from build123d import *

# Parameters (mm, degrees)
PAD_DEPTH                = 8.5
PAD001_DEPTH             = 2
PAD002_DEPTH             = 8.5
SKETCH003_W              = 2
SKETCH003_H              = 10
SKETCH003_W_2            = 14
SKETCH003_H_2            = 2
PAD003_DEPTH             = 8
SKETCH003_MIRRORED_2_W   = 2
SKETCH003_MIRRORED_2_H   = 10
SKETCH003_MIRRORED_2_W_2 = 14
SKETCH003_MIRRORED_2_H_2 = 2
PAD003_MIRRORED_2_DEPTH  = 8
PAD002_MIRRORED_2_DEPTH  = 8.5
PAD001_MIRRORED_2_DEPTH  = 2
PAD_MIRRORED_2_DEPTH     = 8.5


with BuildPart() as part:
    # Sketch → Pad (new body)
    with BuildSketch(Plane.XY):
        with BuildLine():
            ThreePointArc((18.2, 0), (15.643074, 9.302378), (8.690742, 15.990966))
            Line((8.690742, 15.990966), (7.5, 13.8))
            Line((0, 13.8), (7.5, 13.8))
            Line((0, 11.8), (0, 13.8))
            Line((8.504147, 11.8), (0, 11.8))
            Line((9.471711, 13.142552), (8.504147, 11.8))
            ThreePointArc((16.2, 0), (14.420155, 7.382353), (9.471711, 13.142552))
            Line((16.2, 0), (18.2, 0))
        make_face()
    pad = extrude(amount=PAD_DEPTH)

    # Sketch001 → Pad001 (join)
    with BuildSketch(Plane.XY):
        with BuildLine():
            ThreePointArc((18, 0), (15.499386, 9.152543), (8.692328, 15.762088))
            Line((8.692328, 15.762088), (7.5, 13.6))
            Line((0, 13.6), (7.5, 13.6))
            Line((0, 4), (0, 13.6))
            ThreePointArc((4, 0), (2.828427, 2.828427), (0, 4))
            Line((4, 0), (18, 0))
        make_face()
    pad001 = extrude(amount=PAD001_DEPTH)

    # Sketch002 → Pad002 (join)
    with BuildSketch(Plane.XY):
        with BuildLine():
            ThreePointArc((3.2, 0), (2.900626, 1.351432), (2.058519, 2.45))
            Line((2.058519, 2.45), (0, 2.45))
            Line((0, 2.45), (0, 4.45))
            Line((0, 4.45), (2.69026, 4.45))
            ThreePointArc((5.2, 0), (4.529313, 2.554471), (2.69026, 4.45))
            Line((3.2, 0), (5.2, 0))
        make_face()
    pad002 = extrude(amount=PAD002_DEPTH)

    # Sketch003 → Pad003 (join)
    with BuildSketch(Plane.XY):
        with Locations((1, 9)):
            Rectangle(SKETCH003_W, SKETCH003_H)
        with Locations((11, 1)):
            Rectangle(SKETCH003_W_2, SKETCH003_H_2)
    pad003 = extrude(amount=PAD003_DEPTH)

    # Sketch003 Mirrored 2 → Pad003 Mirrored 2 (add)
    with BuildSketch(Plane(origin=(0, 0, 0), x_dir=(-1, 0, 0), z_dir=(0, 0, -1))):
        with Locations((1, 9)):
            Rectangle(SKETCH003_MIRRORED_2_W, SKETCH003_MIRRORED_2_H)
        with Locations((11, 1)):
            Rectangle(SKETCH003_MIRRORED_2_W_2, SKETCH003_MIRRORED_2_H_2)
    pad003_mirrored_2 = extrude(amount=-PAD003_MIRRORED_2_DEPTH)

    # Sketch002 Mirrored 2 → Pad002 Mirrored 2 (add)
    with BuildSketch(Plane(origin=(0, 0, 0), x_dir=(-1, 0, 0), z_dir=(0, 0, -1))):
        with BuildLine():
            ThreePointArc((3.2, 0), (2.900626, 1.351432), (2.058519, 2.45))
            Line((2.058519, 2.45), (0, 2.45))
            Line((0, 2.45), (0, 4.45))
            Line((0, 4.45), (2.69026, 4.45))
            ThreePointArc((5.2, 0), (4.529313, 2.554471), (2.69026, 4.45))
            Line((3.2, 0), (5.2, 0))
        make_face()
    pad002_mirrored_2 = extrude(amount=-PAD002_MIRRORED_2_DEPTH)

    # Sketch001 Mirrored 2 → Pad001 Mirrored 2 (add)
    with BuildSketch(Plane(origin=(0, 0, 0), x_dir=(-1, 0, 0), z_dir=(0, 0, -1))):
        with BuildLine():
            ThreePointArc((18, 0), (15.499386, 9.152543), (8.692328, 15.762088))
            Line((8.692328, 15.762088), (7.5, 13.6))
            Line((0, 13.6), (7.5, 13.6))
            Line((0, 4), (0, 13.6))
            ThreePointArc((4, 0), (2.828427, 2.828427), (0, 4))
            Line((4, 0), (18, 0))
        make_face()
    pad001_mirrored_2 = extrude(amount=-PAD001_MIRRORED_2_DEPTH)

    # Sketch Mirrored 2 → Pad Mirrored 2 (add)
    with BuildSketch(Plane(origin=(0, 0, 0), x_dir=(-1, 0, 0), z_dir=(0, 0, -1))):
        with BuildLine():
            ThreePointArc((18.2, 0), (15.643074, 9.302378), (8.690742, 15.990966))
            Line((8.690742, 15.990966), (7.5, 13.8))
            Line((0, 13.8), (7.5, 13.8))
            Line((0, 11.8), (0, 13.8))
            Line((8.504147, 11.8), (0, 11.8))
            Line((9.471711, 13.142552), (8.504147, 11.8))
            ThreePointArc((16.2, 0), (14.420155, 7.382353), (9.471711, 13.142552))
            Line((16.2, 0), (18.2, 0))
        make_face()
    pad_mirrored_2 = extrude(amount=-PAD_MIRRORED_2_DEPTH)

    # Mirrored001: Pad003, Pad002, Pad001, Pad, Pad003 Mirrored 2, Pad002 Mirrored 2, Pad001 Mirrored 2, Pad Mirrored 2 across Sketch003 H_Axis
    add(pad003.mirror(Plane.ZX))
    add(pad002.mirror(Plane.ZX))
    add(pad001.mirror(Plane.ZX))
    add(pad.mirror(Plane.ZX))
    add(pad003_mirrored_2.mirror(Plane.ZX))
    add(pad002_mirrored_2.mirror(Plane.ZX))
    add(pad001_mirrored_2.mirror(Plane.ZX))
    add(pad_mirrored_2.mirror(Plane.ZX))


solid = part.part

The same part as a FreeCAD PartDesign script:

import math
import FreeCAD as App
import Part
import Sketcher
from FreeCAD import Vector
Q = App.Units.Quantity


def add_polygon(sketch, points):
    """Adds a closed chain of lines whose ends are joined by coincident constraints."""
    first, n = sketch.GeometryCount, len(points)
    for a, b in zip(points, points[1:] + points[:1]):
        sketch.addGeometry(Part.LineSegment(App.Vector(*a, 0), App.Vector(*b, 0)), False)
    for i in range(n):
        sketch.addConstraint(Sketcher.Constraint("Coincident", first + i, 2, first + (i + 1) % n, 1))

doc = App.newDocument("Part")
body = doc.addObject("PartDesign::Body", "Body")
body.AllowCompound = True

# Sketch on XY plane
sketch1 = body.newObject("Sketcher::SketchObject", "Sketch")
sketch1.AttachmentSupport = (doc.getObject("XY_Plane"), [""])
sketch1.MapMode = "FlatFace"
sketch1.addGeometry(Part.ArcOfCircle(Part.Circle(Vector(0.000001, 0, 0), Vector(0, 0, 1), 18.199999), math.radians(-0.000001), math.radians(61.476885)), False)
sketch1.addGeometry(Part.LineSegment(Vector(8.690742, 15.990966, 0), Vector(7.5, 13.8, 0)), False)
sketch1.addGeometry(Part.LineSegment(Vector(7.5, 13.8, 0), Vector(0, 13.8, 0)), False)
sketch1.addGeometry(Part.LineSegment(Vector(0, 13.8, 0), Vector(0, 11.8, 0)), False)
sketch1.addGeometry(Part.LineSegment(Vector(0, 11.8, 0), Vector(8.504147, 11.8, 0)), False)
sketch1.addGeometry(Part.LineSegment(Vector(8.504147, 11.8, 0), Vector(9.471711, 13.142552, 0)), False)
sketch1.addGeometry(Part.ArcOfCircle(Part.Circle(Vector(0.000004, 0.000001, 0), Vector(0, 0, 1), 16.199996), math.radians(-0.000005), math.radians(54.220078)), False)
sketch1.addGeometry(Part.LineSegment(Vector(16.2, 0, 0), Vector(18.2, 0, 0)), False)
sketch1.addConstraint(Sketcher.Constraint("Coincident", 0, 2, 1, 1))
sketch1.addConstraint(Sketcher.Constraint("Coincident", 1, 2, 2, 1))
sketch1.addConstraint(Sketcher.Constraint("Coincident", 2, 2, 3, 1))
sketch1.addConstraint(Sketcher.Constraint("Coincident", 3, 2, 4, 1))
sketch1.addConstraint(Sketcher.Constraint("Coincident", 4, 2, 5, 1))
sketch1.addConstraint(Sketcher.Constraint("Coincident", 5, 2, 6, 2))
sketch1.addConstraint(Sketcher.Constraint("Coincident", 6, 1, 7, 1))
sketch1.addConstraint(Sketcher.Constraint("Coincident", 7, 2, 0, 1))
sketch1.addConstraint(Sketcher.Constraint("Horizontal", 2))
sketch1.addConstraint(Sketcher.Constraint("Vertical", 3))
sketch1.addConstraint(Sketcher.Constraint("Horizontal", 4))
sketch1.addConstraint(Sketcher.Constraint("Horizontal", 7))
sketch1.addConstraint(Sketcher.Constraint("Coincident", 0, 3, -1, 1))
sketch1.addConstraint(Sketcher.Constraint("Coincident", 6, 3, -1, 1))
sketch1.addConstraint(Sketcher.Constraint("PointOnObject", 2, 2, -2))
sketch1.addConstraint(Sketcher.Constraint("PointOnObject", 6, 1, -1))
sketch1.addConstraint(Sketcher.Constraint("Equal", 7, 3))
sketch1.addConstraint(Sketcher.Constraint("Radius", 0, Q("18.199999 mm")))
sketch1.addConstraint(Sketcher.Constraint("DistanceX", 7, 1, 7, 2, Q("2 mm")))
sketch1.addConstraint(Sketcher.Constraint("DistanceX", 2, 2, 2, 1, Q("7.5 mm")))
sketch1.addConstraint(Sketcher.Constraint("DistanceY", -1, 1, 1, 2, Q("13.8 mm")))
sketch1.addConstraint(Sketcher.Constraint("Distance", 5, Q("1.654879 mm")))
sketch1.addConstraint(Sketcher.Constraint("DistanceX", -1, 1, 0, 2, Q("8.690742 mm")))
sketch1.addConstraint(Sketcher.Constraint("DistanceX", -1, 1, 5, 2, Q("9.471711 mm")))
pad1 = body.newObject("PartDesign::Pad", "Pad")
pad1.Profile = sketch1
pad1.Length = 8.5

# Sketch on XY plane
sketch2 = body.newObject("Sketcher::SketchObject", "Sketch001")
sketch2.AttachmentSupport = (doc.getObject("XY_Plane"), [""])
sketch2.MapMode = "FlatFace"
sketch2.addGeometry(Part.ArcOfCircle(Part.Circle(Vector(0.000003, 0.000001, 0), Vector(0, 0, 1), 17.999997), math.radians(-0.000005), math.radians(61.124563)), False)
sketch2.addGeometry(Part.LineSegment(Vector(8.692328, 15.762088, 0), Vector(7.5, 13.6, 0)), False)
sketch2.addGeometry(Part.LineSegment(Vector(7.5, 13.6, 0), Vector(0, 13.6, 0)), False)
sketch2.addGeometry(Part.LineSegment(Vector(0, 13.6, 0), Vector(0, 4, 0)), False)
sketch2.addGeometry(Part.ArcOfCircle(Part.Circle(Vector(0, 0, 0), Vector(0, 0, 1), 4), math.radians(0.000006), math.radians(89.999994)), False)
sketch2.addGeometry(Part.LineSegment(Vector(4, 0, 0), Vector(18, 0, 0)), False)
sketch2.addConstraint(Sketcher.Constraint("Coincident", 0, 2, 1, 1))
sketch2.addConstraint(Sketcher.Constraint("Coincident", 1, 2, 2, 1))
sketch2.addConstraint(Sketcher.Constraint("Coincident", 2, 2, 3, 1))
sketch2.addConstraint(Sketcher.Constraint("Coincident", 3, 2, 4, 2))
sketch2.addConstraint(Sketcher.Constraint("Coincident", 4, 1, 5, 1))
sketch2.addConstraint(Sketcher.Constraint("Coincident", 5, 2, 0, 1))
sketch2.addConstraint(Sketcher.Constraint("Horizontal", 2))
sketch2.addConstraint(Sketcher.Constraint("Vertical", 3))
sketch2.addConstraint(Sketcher.Constraint("Horizontal", 5))
sketch2.addConstraint(Sketcher.Constraint("Coincident", 0, 3, -1, 1))
sketch2.addConstraint(Sketcher.Constraint("Coincident", 4, 3, -1, 1))
sketch2.addConstraint(Sketcher.Constraint("PointOnObject", 2, 2, -2))
sketch2.addConstraint(Sketcher.Constraint("PointOnObject", 4, 1, -1))
sketch2.addConstraint(Sketcher.Constraint("Radius", 4, Q("4 mm")))
sketch2.addConstraint(Sketcher.Constraint("DistanceX", 5, 1, 5, 2, Q("14 mm")))
sketch2.addConstraint(Sketcher.Constraint("DistanceX", 2, 2, 2, 1, Q("7.5 mm")))
sketch2.addConstraint(Sketcher.Constraint("DistanceY", 3, 2, 3, 1, Q("9.6 mm")))
sketch2.addConstraint(Sketcher.Constraint("DistanceX", -1, 1, 0, 2, Q("8.692328 mm")))
pad2 = body.newObject("PartDesign::Pad", "Pad001")
pad2.Profile = sketch2
pad2.Length = 2

# Sketch on XY plane
sketch3 = body.newObject("Sketcher::SketchObject", "Sketch002")
sketch3.AttachmentSupport = (doc.getObject("XY_Plane"), [""])
sketch3.MapMode = "FlatFace"
sketch3.addGeometry(Part.ArcOfCircle(Part.Circle(Vector(-0.000001, 0, 0), Vector(0, 0, 1), 3.200001), math.radians(0.000006), math.radians(49.962616)), False)
sketch3.addGeometry(Part.LineSegment(Vector(3.2, 0, 0), Vector(5.2, 0, 0)), False)
sketch3.addGeometry(Part.ArcOfCircle(Part.Circle(Vector(-0.000001, 0, 0), Vector(0, 0, 1), 5.200001), math.radians(0.000005), math.radians(58.844819)), False)
sketch3.addGeometry(Part.LineSegment(Vector(2.69026, 4.45, 0), Vector(0, 4.45, 0)), False)
sketch3.addGeometry(Part.LineSegment(Vector(0, 4.45, 0), Vector(0, 2.45, 0)), False)
sketch3.addGeometry(Part.LineSegment(Vector(0, 2.45, 0), Vector(2.058519, 2.45, 0)), False)
sketch3.addConstraint(Sketcher.Constraint("Coincident", 0, 1, 1, 1))
sketch3.addConstraint(Sketcher.Constraint("Coincident", 1, 2, 2, 1))
sketch3.addConstraint(Sketcher.Constraint("Coincident", 2, 2, 3, 1))
sketch3.addConstraint(Sketcher.Constraint("Coincident", 3, 2, 4, 1))
sketch3.addConstraint(Sketcher.Constraint("Coincident", 4, 2, 5, 1))
sketch3.addConstraint(Sketcher.Constraint("Coincident", 5, 2, 0, 2))
sketch3.addConstraint(Sketcher.Constraint("Horizontal", 1))
sketch3.addConstraint(Sketcher.Constraint("Horizontal", 3))
sketch3.addConstraint(Sketcher.Constraint("Vertical", 4))
sketch3.addConstraint(Sketcher.Constraint("Horizontal", 5))
sketch3.addConstraint(Sketcher.Constraint("Coincident", 0, 3, -1, 1))
sketch3.addConstraint(Sketcher.Constraint("Coincident", 2, 3, -1, 1))
sketch3.addConstraint(Sketcher.Constraint("PointOnObject", 0, 1, -1))
sketch3.addConstraint(Sketcher.Constraint("PointOnObject", 3, 2, -2))
sketch3.addConstraint(Sketcher.Constraint("Equal", 1, 4))
sketch3.addConstraint(Sketcher.Constraint("Radius", 0, Q("3.200001 mm")))
sketch3.addConstraint(Sketcher.Constraint("Radius", 2, Q("5.200001 mm")))
sketch3.addConstraint(Sketcher.Constraint("DistanceY", -1, 1, 2, 2, Q("4.45 mm")))
pad3 = body.newObject("PartDesign::Pad", "Pad002")
pad3.Profile = sketch3
pad3.Length = 8.5

# Sketch on XY plane
sketch4 = body.newObject("Sketcher::SketchObject", "Sketch003")
sketch4.AttachmentSupport = (doc.getObject("XY_Plane"), [""])
sketch4.MapMode = "FlatFace"
add_polygon(sketch4, [(0, 14), (0, 4), (2, 4), (2, 14)])  # lines 0-3
add_polygon(sketch4, [(4, 2), (4, 0), (18, 0), (18, 2)])  # lines 4-7
sketch4.addConstraint(Sketcher.Constraint("Vertical", 0))
sketch4.addConstraint(Sketcher.Constraint("Horizontal", 1))
sketch4.addConstraint(Sketcher.Constraint("Vertical", 2))
sketch4.addConstraint(Sketcher.Constraint("Horizontal", 3))
sketch4.addConstraint(Sketcher.Constraint("Vertical", 4))
sketch4.addConstraint(Sketcher.Constraint("Horizontal", 5))
sketch4.addConstraint(Sketcher.Constraint("Vertical", 6))
sketch4.addConstraint(Sketcher.Constraint("Horizontal", 7))
sketch4.addConstraint(Sketcher.Constraint("PointOnObject", 0, 2, -2))
sketch4.addConstraint(Sketcher.Constraint("PointOnObject", 4, 2, -1))
sketch4.addConstraint(Sketcher.Constraint("Equal", 3, 4))
sketch4.addConstraint(Sketcher.Constraint("DistanceX", 1, 1, 1, 2, Q("2 mm")))
sketch4.addConstraint(Sketcher.Constraint("DistanceX", 5, 1, 5, 2, Q("14 mm")))
sketch4.addConstraint(Sketcher.Constraint("DistanceY", 0, 2, 0, 1, Q("10 mm")))
sketch4.addConstraint(Sketcher.Constraint("DistanceY", -1, 1, 0, 2, Q("4 mm")))
sketch4.addConstraint(Sketcher.Constraint("DistanceX", -1, 1, 4, 2, Q("4 mm")))
pad4 = body.newObject("PartDesign::Pad", "Pad003")
pad4.Profile = sketch4
pad4.Length = 8

# Sketch on XY plane
sketch5 = body.newObject("Sketcher::SketchObject", "Sketch004")
sketch5.AttachmentSupport = (doc.getObject("XY_Plane"), [""])
sketch5.MapMode = "FlatFace"
add_polygon(sketch5, [(0, 14), (0, 4), (-2, 4), (-2, 14)])  # lines 0-3
add_polygon(sketch5, [(-4, 2), (-4, 0), (-18, 0), (-18, 2)])  # lines 4-7
sketch5.addConstraint(Sketcher.Constraint("Vertical", 0))
sketch5.addConstraint(Sketcher.Constraint("Horizontal", 1))
sketch5.addConstraint(Sketcher.Constraint("Vertical", 2))
sketch5.addConstraint(Sketcher.Constraint("Horizontal", 3))
sketch5.addConstraint(Sketcher.Constraint("Vertical", 4))
sketch5.addConstraint(Sketcher.Constraint("Horizontal", 5))
sketch5.addConstraint(Sketcher.Constraint("Vertical", 6))
sketch5.addConstraint(Sketcher.Constraint("Horizontal", 7))
sketch5.addConstraint(Sketcher.Constraint("PointOnObject", 0, 2, -2))
sketch5.addConstraint(Sketcher.Constraint("PointOnObject", 4, 2, -1))
sketch5.addConstraint(Sketcher.Constraint("Equal", 3, 4))
sketch5.addConstraint(Sketcher.Constraint("DistanceX", 1, 2, 1, 1, Q("2 mm")))
sketch5.addConstraint(Sketcher.Constraint("DistanceX", 5, 2, 5, 1, Q("14 mm")))
sketch5.addConstraint(Sketcher.Constraint("DistanceY", 0, 2, 0, 1, Q("10 mm")))
sketch5.addConstraint(Sketcher.Constraint("DistanceY", -1, 1, 0, 2, Q("4 mm")))
sketch5.addConstraint(Sketcher.Constraint("DistanceX", 4, 2, -1, 1, Q("4 mm")))
pad5 = body.newObject("PartDesign::Pad", "Pad004")
pad5.Profile = sketch5
pad5.Length = 8

# Sketch on XY plane
sketch6 = body.newObject("Sketcher::SketchObject", "Sketch005")
sketch6.AttachmentSupport = (doc.getObject("XY_Plane"), [""])
sketch6.MapMode = "FlatFace"
sketch6.addGeometry(Part.ArcOfCircle(Part.Circle(Vector(0.000001, 0, 0), Vector(0, 0, 1), 3.200001), math.radians(130.037384), math.radians(179.999994)), False)
sketch6.addGeometry(Part.LineSegment(Vector(-3.2, 0, 0), Vector(-5.2, 0, 0)), False)
sketch6.addGeometry(Part.ArcOfCircle(Part.Circle(Vector(0.000001, 0, 0), Vector(0, 0, 1), 5.200001), math.radians(121.155181), math.radians(179.999995)), False)
sketch6.addGeometry(Part.LineSegment(Vector(-2.69026, 4.45, 0), Vector(0, 4.45, 0)), False)
sketch6.addGeometry(Part.LineSegment(Vector(0, 4.45, 0), Vector(0, 2.45, 0)), False)
sketch6.addGeometry(Part.LineSegment(Vector(0, 2.45, 0), Vector(-2.058519, 2.45, 0)), False)
sketch6.addConstraint(Sketcher.Constraint("Coincident", 0, 2, 1, 1))
sketch6.addConstraint(Sketcher.Constraint("Coincident", 1, 2, 2, 2))
sketch6.addConstraint(Sketcher.Constraint("Coincident", 2, 1, 3, 1))
sketch6.addConstraint(Sketcher.Constraint("Coincident", 3, 2, 4, 1))
sketch6.addConstraint(Sketcher.Constraint("Coincident", 4, 2, 5, 1))
sketch6.addConstraint(Sketcher.Constraint("Coincident", 5, 2, 0, 1))
sketch6.addConstraint(Sketcher.Constraint("Horizontal", 1))
sketch6.addConstraint(Sketcher.Constraint("Horizontal", 3))
sketch6.addConstraint(Sketcher.Constraint("Vertical", 4))
sketch6.addConstraint(Sketcher.Constraint("Horizontal", 5))
sketch6.addConstraint(Sketcher.Constraint("Coincident", 0, 3, -1, 1))
sketch6.addConstraint(Sketcher.Constraint("Coincident", 2, 3, -1, 1))
sketch6.addConstraint(Sketcher.Constraint("PointOnObject", 0, 2, -1))
sketch6.addConstraint(Sketcher.Constraint("PointOnObject", 3, 2, -2))
sketch6.addConstraint(Sketcher.Constraint("Equal", 1, 4))
sketch6.addConstraint(Sketcher.Constraint("Radius", 0, Q("3.200001 mm")))
sketch6.addConstraint(Sketcher.Constraint("Radius", 2, Q("5.200001 mm")))
sketch6.addConstraint(Sketcher.Constraint("DistanceY", -1, 1, 2, 1, Q("4.45 mm")))
pad6 = body.newObject("PartDesign::Pad", "Pad005")
pad6.Profile = sketch6
pad6.Length = 8.5

# Sketch on XY plane
sketch7 = body.newObject("Sketcher::SketchObject", "Sketch006")
sketch7.AttachmentSupport = (doc.getObject("XY_Plane"), [""])
sketch7.MapMode = "FlatFace"
sketch7.addGeometry(Part.ArcOfCircle(Part.Circle(Vector(-0.000003, 0.000001, 0), Vector(0, 0, 1), 17.999997), math.radians(118.875437), math.radians(180.000005)), False)
sketch7.addGeometry(Part.LineSegment(Vector(-8.692328, 15.762088, 0), Vector(-7.5, 13.6, 0)), False)
sketch7.addGeometry(Part.LineSegment(Vector(-7.5, 13.6, 0), Vector(0, 13.6, 0)), False)
sketch7.addGeometry(Part.LineSegment(Vector(0, 13.6, 0), Vector(0, 4, 0)), False)
sketch7.addGeometry(Part.ArcOfCircle(Part.Circle(Vector(0, 0, 0), Vector(0, 0, 1), 4), math.radians(90.000006), math.radians(179.999994)), False)
sketch7.addGeometry(Part.LineSegment(Vector(-4, 0, 0), Vector(-18, 0, 0)), False)
sketch7.addConstraint(Sketcher.Constraint("Coincident", 0, 1, 1, 1))
sketch7.addConstraint(Sketcher.Constraint("Coincident", 1, 2, 2, 1))
sketch7.addConstraint(Sketcher.Constraint("Coincident", 2, 2, 3, 1))
sketch7.addConstraint(Sketcher.Constraint("Coincident", 3, 2, 4, 1))
sketch7.addConstraint(Sketcher.Constraint("Coincident", 4, 2, 5, 1))
sketch7.addConstraint(Sketcher.Constraint("Coincident", 5, 2, 0, 2))
sketch7.addConstraint(Sketcher.Constraint("Horizontal", 2))
sketch7.addConstraint(Sketcher.Constraint("Vertical", 3))
sketch7.addConstraint(Sketcher.Constraint("Horizontal", 5))
sketch7.addConstraint(Sketcher.Constraint("Coincident", 0, 3, -1, 1))
sketch7.addConstraint(Sketcher.Constraint("Coincident", 4, 3, -1, 1))
sketch7.addConstraint(Sketcher.Constraint("PointOnObject", 2, 2, -2))
sketch7.addConstraint(Sketcher.Constraint("PointOnObject", 4, 2, -1))
sketch7.addConstraint(Sketcher.Constraint("Radius", 4, Q("4 mm")))
sketch7.addConstraint(Sketcher.Constraint("DistanceX", 5, 2, 5, 1, Q("14 mm")))
sketch7.addConstraint(Sketcher.Constraint("DistanceX", 2, 1, 2, 2, Q("7.5 mm")))
sketch7.addConstraint(Sketcher.Constraint("DistanceY", 3, 2, 3, 1, Q("9.6 mm")))
sketch7.addConstraint(Sketcher.Constraint("DistanceX", 0, 1, -1, 1, Q("8.692328 mm")))
pad7 = body.newObject("PartDesign::Pad", "Pad006")
pad7.Profile = sketch7
pad7.Length = 2

# Sketch on XY plane
sketch8 = body.newObject("Sketcher::SketchObject", "Sketch007")
sketch8.AttachmentSupport = (doc.getObject("XY_Plane"), [""])
sketch8.MapMode = "FlatFace"
sketch8.addGeometry(Part.ArcOfCircle(Part.Circle(Vector(-0.000001, 0, 0), Vector(0, 0, 1), 18.199999), math.radians(118.523115), math.radians(180.000001)), False)
sketch8.addGeometry(Part.LineSegment(Vector(-8.690742, 15.990966, 0), Vector(-7.5, 13.8, 0)), False)
sketch8.addGeometry(Part.LineSegment(Vector(-7.5, 13.8, 0), Vector(0, 13.8, 0)), False)
sketch8.addGeometry(Part.LineSegment(Vector(0, 13.8, 0), Vector(0, 11.8, 0)), False)
sketch8.addGeometry(Part.LineSegment(Vector(0, 11.8, 0), Vector(-8.504147, 11.8, 0)), False)
sketch8.addGeometry(Part.LineSegment(Vector(-8.504147, 11.8, 0), Vector(-9.471711, 13.142552, 0)), False)
sketch8.addGeometry(Part.ArcOfCircle(Part.Circle(Vector(-0.000004, 0.000001, 0), Vector(0, 0, 1), 16.199996), math.radians(125.779922), math.radians(180.000005)), False)
sketch8.addGeometry(Part.LineSegment(Vector(-16.2, 0, 0), Vector(-18.2, 0, 0)), False)
sketch8.addConstraint(Sketcher.Constraint("Coincident", 0, 1, 1, 1))
sketch8.addConstraint(Sketcher.Constraint("Coincident", 1, 2, 2, 1))
sketch8.addConstraint(Sketcher.Constraint("Coincident", 2, 2, 3, 1))
sketch8.addConstraint(Sketcher.Constraint("Coincident", 3, 2, 4, 1))
sketch8.addConstraint(Sketcher.Constraint("Coincident", 4, 2, 5, 1))
sketch8.addConstraint(Sketcher.Constraint("Coincident", 5, 2, 6, 1))
sketch8.addConstraint(Sketcher.Constraint("Coincident", 6, 2, 7, 1))
sketch8.addConstraint(Sketcher.Constraint("Coincident", 7, 2, 0, 2))
sketch8.addConstraint(Sketcher.Constraint("Horizontal", 2))
sketch8.addConstraint(Sketcher.Constraint("Vertical", 3))
sketch8.addConstraint(Sketcher.Constraint("Horizontal", 4))
sketch8.addConstraint(Sketcher.Constraint("Horizontal", 7))
sketch8.addConstraint(Sketcher.Constraint("Coincident", 0, 3, -1, 1))
sketch8.addConstraint(Sketcher.Constraint("Coincident", 6, 3, -1, 1))
sketch8.addConstraint(Sketcher.Constraint("PointOnObject", 2, 2, -2))
sketch8.addConstraint(Sketcher.Constraint("PointOnObject", 6, 2, -1))
sketch8.addConstraint(Sketcher.Constraint("Equal", 7, 3))
sketch8.addConstraint(Sketcher.Constraint("Radius", 0, Q("18.199999 mm")))
sketch8.addConstraint(Sketcher.Constraint("DistanceX", 7, 2, 7, 1, Q("2 mm")))
sketch8.addConstraint(Sketcher.Constraint("DistanceX", 2, 1, 2, 2, Q("7.5 mm")))
sketch8.addConstraint(Sketcher.Constraint("DistanceY", -1, 1, 1, 2, Q("13.8 mm")))
sketch8.addConstraint(Sketcher.Constraint("Distance", 5, Q("1.654879 mm")))
sketch8.addConstraint(Sketcher.Constraint("DistanceX", 0, 1, -1, 1, Q("8.690742 mm")))
sketch8.addConstraint(Sketcher.Constraint("DistanceX", 5, 2, -1, 1, Q("9.471711 mm")))
pad8 = body.newObject("PartDesign::Pad", "Pad007")
pad8.Profile = sketch8
pad8.Length = 8.5
doc.recompute()

mirrored = body.newObject("PartDesign::Mirrored", "Mirrored")
mirrored.Originals = [pad4, pad3, pad2, pad1, pad5, pad6, pad7, pad8]
mirrored.MirrorPlane = (doc.getObject("XZ_Plane"), [""])
body.Tip = mirrored

doc.recompute()
